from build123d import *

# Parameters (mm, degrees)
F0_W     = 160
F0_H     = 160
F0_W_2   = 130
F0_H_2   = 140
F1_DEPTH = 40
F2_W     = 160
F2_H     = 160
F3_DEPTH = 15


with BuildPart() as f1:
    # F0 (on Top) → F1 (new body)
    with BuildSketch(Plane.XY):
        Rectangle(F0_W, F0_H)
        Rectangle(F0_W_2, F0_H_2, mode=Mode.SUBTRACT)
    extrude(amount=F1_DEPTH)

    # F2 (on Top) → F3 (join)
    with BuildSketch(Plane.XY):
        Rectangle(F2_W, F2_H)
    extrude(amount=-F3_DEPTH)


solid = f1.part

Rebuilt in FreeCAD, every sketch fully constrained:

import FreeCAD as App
import Part
import Sketcher


def add_polygon(sketch, points):
    """Adds a closed chain of lines whose ends are joined by coincident constraints."""
    first, n = sketch.GeometryCount, len(points)
    for a, b in zip(points, points[1:] + points[:1]):
        sketch.addGeometry(Part.LineSegment(App.Vector(*a, 0), App.Vector(*b, 0)), False)
    for i in range(n):
        sketch.addConstraint(Sketcher.Constraint("Coincident", first + i, 2, first + (i + 1) % n, 1))

doc = App.newDocument("Part")
body = doc.addObject("PartDesign::Body", "Body")

sketch1 = body.newObject("Sketcher::SketchObject", "Sketch")
sketch1.AttachmentSupport = (doc.getObject("XY_Plane"), [""])
sketch1.MapMode = "FlatFace"
add_polygon(sketch1, [(-80, 80), (-80, -80), (80, -80), (80, 80)])
add_polygon(sketch1, [(65, -70), (-65, -70), (-65, 70), (65, 70)])
sketch1.addConstraint(Sketcher.Constraint("Vertical", 0))
sketch1.addConstraint(Sketcher.Constraint("Horizontal", 1))
sketch1.addConstraint(Sketcher.Constraint("Vertical", 2))
sketch1.addConstraint(Sketcher.Constraint("Horizontal", 3))
sketch1.addConstraint(Sketcher.Constraint("Horizontal", 4))
sketch1.addConstraint(Sketcher.Constraint("Vertical", 5))
sketch1.addConstraint(Sketcher.Constraint("Horizontal", 6))
sketch1.addConstraint(Sketcher.Constraint("Vertical", 7))
sketch1.addConstraint(Sketcher.Constraint("Symmetric", 0, 2, 2, 2, -1, 1))
sketch1.addConstraint(Sketcher.Constraint("Symmetric", 4, 2, 6, 2, -1, 1))
sketch1.addConstraint(Sketcher.Constraint("Equal", 3, 0))
sketch1.addConstraint(Sketcher.Constraint("DistanceX", 1, 1, 1, 2, 160.0))
sketch1.addConstraint(Sketcher.Constraint("DistanceX", 4, 2, 4, 1, 130.0))
sketch1.addConstraint(Sketcher.Constraint("DistanceY", 5, 1, 5, 2, 140.0))
pad1 = body.newObject("PartDesign::Pad", "Pad")
pad1.Profile = sketch1
pad1.Length = 40

sketch2 = body.newObject("Sketcher::SketchObject", "Sketch001")
sketch2.AttachmentSupport = (doc.getObject("XY_Plane"), [""])
sketch2.MapMode = "FlatFace"
add_polygon(sketch2, [(-80, 80), (-80, -80), (80, -80), (80, 80)])
sketch2.addConstraint(Sketcher.Constraint("Vertical", 0))
sketch2.addConstraint(Sketcher.Constraint("Horizontal", 1))
sketch2.addConstraint(Sketcher.Constraint("Vertical", 2))
sketch2.addConstraint(Sketcher.Constraint("Horizontal", 3))
sketch2.addConstraint(Sketcher.Constraint("Symmetric", 0, 2, 2, 2, -1, 1))
sketch2.addConstraint(Sketcher.Constraint("Equal", 3, 0))
sketch2.addConstraint(Sketcher.Constraint("DistanceX", 1, 1, 1, 2, 160.0))
pad2 = body.newObject("PartDesign::Pad", "Pad001")
pad2.Profile = sketch2
pad2.Length = 15
pad2.Reversed = True

doc.recompute()
